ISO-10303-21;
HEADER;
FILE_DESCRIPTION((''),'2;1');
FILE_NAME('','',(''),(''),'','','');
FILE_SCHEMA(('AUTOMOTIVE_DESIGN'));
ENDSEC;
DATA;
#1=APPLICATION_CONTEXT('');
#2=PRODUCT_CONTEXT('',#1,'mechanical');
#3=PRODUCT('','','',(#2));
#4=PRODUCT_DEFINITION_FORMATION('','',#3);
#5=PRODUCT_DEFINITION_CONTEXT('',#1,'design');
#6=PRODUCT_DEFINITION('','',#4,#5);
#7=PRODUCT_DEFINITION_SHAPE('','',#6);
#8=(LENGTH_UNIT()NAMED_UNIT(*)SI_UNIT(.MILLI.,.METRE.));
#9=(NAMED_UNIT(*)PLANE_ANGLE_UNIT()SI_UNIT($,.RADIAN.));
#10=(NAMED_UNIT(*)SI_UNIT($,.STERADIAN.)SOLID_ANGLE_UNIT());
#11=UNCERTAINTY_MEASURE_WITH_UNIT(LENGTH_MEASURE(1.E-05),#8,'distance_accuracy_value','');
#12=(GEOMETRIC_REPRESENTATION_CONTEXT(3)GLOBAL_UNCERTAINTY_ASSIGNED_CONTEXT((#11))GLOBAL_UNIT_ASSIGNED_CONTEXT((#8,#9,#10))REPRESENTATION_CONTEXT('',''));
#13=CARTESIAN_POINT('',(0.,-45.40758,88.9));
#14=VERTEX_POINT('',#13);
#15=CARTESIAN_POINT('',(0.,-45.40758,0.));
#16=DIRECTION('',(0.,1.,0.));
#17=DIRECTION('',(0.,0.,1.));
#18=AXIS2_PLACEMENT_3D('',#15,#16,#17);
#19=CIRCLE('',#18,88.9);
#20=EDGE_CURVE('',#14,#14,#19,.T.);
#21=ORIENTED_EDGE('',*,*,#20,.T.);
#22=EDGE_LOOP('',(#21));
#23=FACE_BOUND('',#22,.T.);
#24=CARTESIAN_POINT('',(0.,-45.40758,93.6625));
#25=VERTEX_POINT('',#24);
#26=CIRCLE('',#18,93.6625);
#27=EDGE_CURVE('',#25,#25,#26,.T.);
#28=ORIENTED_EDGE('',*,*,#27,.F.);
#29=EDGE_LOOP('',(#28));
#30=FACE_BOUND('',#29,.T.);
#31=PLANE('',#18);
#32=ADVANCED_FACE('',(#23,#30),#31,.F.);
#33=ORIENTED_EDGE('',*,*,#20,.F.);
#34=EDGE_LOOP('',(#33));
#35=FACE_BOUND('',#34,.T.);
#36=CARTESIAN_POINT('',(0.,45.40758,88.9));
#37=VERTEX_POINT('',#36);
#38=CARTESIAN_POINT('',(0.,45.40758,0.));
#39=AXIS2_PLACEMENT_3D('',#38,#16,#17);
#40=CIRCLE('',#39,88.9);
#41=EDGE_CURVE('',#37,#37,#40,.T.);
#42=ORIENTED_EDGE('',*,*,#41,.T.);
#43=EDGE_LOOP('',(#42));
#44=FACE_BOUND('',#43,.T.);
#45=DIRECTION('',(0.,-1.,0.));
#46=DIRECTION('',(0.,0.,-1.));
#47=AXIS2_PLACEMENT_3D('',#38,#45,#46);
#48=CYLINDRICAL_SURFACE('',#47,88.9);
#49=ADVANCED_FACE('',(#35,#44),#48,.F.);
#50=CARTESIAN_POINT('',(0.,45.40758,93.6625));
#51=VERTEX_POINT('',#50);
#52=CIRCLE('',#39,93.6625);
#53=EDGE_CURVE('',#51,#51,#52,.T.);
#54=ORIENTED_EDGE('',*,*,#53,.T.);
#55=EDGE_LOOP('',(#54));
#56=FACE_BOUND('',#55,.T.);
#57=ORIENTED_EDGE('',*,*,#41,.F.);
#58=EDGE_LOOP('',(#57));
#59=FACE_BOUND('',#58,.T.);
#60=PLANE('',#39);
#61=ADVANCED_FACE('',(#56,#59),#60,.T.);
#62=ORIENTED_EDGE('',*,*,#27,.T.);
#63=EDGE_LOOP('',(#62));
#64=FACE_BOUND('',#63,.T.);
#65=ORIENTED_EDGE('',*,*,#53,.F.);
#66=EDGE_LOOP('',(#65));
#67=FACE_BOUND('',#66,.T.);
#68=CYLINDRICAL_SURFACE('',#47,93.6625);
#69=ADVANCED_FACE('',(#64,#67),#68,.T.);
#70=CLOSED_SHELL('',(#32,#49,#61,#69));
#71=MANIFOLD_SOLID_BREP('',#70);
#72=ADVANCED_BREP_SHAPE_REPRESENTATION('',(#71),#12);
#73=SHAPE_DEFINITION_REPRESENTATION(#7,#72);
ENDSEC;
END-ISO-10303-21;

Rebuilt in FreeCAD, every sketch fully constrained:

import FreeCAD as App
import Part
import Sketcher
Q = App.Units.Quantity

doc = App.newDocument("Part")
body = doc.addObject("PartDesign::Body", "Body")

# Sketch on XZ plane
sketch1 = doc.addObject("Sketcher::SketchObject", "Sketch")
body.addObject(sketch1)
sketch1.AttachmentSupport = (doc.XZ_Plane, [""])
sketch1.MapMode = "FlatFace"
sketch1.addGeometry(Part.Circle(App.Vector(0, 0, 0), App.Vector(0, 0, 1), 93.6625), False)
sketch1.addGeometry(Part.Circle(App.Vector(0, 0, 0), App.Vector(0, 0, 1), 88.9), False)
sketch1.addConstraint(Sketcher.Constraint("Coincident", 0, 3, -1, 1))
sketch1.addConstraint(Sketcher.Constraint("Coincident", 1, 3, -1, 1))
sketch1.addConstraint(Sketcher.Constraint("Diameter", 1, Q("7 in")))
sketch1.addConstraint(Sketcher.Constraint("Diameter", 0, Q("7.375 in")))
pad1 = doc.addObject("PartDesign::Pad", "Pad")
body.addObject(pad1)
pad1.Profile = sketch1
pad1.Length = Q("3.5754 in")
pad1.Midplane = True

doc.recompute()
